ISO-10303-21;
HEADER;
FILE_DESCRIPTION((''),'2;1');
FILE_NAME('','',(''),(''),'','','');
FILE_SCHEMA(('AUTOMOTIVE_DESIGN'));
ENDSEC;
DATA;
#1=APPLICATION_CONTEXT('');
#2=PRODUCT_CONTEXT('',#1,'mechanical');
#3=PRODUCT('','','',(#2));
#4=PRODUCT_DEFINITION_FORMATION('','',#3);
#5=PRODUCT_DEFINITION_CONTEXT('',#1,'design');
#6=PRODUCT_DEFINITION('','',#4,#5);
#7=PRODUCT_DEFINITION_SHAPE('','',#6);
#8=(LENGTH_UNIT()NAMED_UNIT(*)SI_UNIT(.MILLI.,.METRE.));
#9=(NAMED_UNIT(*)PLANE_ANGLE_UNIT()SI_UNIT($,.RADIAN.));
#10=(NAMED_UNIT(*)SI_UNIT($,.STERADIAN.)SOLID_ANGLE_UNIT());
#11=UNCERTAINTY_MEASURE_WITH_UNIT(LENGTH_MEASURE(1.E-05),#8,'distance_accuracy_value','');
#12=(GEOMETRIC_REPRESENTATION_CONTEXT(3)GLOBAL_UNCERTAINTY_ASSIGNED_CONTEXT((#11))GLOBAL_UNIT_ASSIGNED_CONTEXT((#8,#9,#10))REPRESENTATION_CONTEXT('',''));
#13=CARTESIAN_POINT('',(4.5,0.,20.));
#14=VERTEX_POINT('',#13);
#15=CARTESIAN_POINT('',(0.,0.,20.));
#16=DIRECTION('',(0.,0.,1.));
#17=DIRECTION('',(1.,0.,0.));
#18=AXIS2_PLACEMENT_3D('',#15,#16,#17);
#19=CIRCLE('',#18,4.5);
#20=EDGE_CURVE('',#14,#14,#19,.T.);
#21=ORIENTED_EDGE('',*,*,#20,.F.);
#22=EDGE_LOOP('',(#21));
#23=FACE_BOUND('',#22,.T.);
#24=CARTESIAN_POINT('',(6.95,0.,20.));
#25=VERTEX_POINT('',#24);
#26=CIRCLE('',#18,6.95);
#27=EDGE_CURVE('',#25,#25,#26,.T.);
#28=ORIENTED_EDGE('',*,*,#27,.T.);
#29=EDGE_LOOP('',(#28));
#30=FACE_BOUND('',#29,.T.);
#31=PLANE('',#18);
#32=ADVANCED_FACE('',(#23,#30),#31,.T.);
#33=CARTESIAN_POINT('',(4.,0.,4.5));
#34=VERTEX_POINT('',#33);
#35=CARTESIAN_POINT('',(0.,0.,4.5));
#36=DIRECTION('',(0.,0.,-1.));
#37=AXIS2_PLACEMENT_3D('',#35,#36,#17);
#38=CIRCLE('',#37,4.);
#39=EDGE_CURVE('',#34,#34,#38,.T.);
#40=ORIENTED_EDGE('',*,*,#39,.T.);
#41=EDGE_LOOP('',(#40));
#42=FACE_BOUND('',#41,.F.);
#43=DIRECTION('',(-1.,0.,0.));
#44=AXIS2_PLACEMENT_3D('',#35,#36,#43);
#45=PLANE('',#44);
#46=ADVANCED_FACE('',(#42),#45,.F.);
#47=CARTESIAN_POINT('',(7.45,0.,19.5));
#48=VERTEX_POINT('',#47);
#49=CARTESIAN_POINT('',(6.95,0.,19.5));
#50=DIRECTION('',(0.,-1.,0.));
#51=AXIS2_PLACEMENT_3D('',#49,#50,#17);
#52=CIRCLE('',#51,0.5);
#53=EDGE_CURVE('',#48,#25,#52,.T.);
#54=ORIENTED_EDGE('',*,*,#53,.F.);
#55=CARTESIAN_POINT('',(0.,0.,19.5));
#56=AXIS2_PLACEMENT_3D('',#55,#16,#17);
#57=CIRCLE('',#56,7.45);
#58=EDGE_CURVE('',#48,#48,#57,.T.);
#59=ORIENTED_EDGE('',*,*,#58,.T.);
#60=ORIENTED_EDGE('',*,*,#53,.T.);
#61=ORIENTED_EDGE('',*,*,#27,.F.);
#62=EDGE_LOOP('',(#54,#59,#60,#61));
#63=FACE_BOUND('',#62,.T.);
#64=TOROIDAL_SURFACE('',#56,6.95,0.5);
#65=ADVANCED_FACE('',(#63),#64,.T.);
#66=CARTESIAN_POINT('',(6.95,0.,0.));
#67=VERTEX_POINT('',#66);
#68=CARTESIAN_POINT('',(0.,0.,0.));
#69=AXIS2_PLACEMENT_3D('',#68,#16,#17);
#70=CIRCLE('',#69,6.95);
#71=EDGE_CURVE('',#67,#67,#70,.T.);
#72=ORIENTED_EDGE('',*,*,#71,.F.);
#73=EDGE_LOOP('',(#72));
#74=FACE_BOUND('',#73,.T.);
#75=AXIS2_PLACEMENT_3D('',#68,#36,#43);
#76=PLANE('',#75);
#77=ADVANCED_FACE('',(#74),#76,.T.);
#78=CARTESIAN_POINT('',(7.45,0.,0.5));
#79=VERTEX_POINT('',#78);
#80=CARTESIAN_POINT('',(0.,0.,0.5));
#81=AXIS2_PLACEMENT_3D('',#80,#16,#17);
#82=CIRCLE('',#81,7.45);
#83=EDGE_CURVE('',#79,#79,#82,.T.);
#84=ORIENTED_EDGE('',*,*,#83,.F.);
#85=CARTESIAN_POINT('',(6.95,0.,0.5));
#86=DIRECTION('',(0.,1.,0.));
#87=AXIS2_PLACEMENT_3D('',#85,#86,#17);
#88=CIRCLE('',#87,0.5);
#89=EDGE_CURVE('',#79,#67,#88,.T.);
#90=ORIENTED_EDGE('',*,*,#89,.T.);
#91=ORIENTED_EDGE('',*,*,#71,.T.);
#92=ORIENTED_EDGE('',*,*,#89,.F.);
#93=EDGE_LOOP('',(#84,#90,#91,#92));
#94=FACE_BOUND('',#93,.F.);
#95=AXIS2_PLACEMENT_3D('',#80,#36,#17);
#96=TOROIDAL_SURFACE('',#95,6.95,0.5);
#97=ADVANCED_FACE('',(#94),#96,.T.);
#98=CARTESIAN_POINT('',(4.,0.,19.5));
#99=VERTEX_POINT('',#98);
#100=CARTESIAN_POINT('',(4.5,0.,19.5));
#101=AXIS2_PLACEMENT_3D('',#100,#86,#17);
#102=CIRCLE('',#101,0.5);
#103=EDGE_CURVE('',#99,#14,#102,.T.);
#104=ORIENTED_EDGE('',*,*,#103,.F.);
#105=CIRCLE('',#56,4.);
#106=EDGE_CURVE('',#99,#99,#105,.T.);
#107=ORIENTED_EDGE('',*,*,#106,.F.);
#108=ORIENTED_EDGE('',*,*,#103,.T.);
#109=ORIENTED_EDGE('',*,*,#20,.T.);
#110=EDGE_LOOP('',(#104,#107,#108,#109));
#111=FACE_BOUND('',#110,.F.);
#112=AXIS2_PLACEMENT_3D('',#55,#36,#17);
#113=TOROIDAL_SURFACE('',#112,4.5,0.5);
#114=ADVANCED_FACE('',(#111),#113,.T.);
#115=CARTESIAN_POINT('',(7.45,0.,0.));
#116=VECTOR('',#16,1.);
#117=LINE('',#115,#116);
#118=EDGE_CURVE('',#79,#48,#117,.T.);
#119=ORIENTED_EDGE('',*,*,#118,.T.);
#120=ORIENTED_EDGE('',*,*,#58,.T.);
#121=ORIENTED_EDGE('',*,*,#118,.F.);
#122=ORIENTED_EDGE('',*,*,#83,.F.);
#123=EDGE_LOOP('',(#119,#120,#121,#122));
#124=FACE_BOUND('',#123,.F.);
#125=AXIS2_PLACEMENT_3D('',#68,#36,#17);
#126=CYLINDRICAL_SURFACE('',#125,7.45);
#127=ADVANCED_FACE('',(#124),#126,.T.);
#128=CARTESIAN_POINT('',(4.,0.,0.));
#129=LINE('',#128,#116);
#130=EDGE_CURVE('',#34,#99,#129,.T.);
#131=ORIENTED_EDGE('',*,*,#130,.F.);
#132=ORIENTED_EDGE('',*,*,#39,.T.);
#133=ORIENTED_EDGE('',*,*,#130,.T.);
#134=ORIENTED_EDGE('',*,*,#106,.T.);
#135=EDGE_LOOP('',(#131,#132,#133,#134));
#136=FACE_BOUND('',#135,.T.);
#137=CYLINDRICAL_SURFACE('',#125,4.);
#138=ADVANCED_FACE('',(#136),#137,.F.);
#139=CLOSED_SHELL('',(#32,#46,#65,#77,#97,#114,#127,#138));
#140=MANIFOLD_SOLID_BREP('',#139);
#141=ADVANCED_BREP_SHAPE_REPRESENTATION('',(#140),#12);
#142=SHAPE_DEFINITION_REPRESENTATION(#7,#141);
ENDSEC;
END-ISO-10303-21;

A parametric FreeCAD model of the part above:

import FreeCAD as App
import Part
import Sketcher
from FreeCAD import Vector
Q = App.Units.Quantity


def edges_at(feature, points):
    """Names of the edges that pass closest to the given points."""
    edges = feature.Shape.Edges
    near = lambda p: min(range(len(edges)), key=lambda i: edges[i].distToShape(Part.Vertex(*p))[0])
    return sorted({f"Edge{near(p) + 1}" for p in points})

doc = App.newDocument("Part")
body = doc.addObject("PartDesign::Body", "Body")

sketch1 = doc.addObject("Sketcher::SketchObject", "Sketch")
body.addObject(sketch1)
sketch1.AttachmentSupport = (doc.XY_Plane, [""])
sketch1.MapMode = "FlatFace"
sketch1.addGeometry([
    Part.Circle(Vector(0, 0, 0), Vector(0, 0, 1), 7.5),
    Part.Circle(Vector(0, 0, 0), Vector(0, 0, 1), 4),
], False)
sketch1.addConstraint([
    Sketcher.Constraint("Coincident", 0, 3, -1, 1),
    Sketcher.Constraint("Coincident", 1, 3, -1, 1),
    Sketcher.Constraint("Diameter", 1, Q("8 mm")),
    Sketcher.Constraint("Diameter", 0, Q("14.9 mm")),
])
pad1 = doc.addObject("PartDesign::Pad", "Pad")
body.addObject(pad1)
pad1.Profile = sketch1
pad1.Length = 20
doc.recompute()

fillet = doc.addObject("PartDesign::Fillet", "Fillet")
body.addObject(fillet)
fillet.Base = (pad1, edges_at(pad1, [(-7.45, 0, 0), (-7.45, 0, 20), (-4, 0, 20)]))
fillet.Radius = 0.5

sketch2 = doc.addObject("Sketcher::SketchObject", "Sketch001")
body.addObject(sketch2)
sketch2.AttachmentSupport = (doc.XY_Plane, [""])
sketch2.MapMode = "FlatFace"
sketch2.addGeometry(Part.Circle(Vector(0, 0, 0), Vector(0, 0, 1), 4), False)
sketch2.addConstraint([
    Sketcher.Constraint("Coincident", 0, 3, -1, 1),
    Sketcher.Constraint("Diameter", 0, Q("8 mm")),
])
pad2 = doc.addObject("PartDesign::Pad", "Pad001")
body.addObject(pad2)
pad2.Profile = sketch2
pad2.Length = 4.5

doc.recompute()
